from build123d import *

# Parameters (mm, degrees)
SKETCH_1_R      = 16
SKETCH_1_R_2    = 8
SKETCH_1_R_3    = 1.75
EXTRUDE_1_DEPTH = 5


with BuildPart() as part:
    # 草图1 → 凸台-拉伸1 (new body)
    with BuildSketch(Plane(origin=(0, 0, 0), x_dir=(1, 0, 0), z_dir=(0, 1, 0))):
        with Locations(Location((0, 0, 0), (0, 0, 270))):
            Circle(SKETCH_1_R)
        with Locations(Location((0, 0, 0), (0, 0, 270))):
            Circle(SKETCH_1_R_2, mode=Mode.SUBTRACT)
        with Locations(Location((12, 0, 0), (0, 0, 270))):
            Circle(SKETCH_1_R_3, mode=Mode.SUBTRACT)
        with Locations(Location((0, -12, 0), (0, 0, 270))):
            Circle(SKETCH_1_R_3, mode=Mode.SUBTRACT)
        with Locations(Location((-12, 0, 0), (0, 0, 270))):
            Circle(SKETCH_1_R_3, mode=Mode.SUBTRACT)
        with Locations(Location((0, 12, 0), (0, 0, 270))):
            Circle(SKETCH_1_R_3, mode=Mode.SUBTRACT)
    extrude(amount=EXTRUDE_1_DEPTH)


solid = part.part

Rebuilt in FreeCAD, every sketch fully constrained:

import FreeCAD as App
import Part
import Sketcher

doc = App.newDocument("Part")
body = doc.addObject("PartDesign::Body", "Body")

sketch1 = doc.addObject("Sketcher::SketchObject", "Sketch")
body.addObject(sketch1)
sketch1.AttachmentSupport = (doc.XZ_Plane, [""])
sketch1.MapMode = "FlatFace"
sketch1.addGeometry(Part.Circle(App.Vector(0, 0, 0), App.Vector(0, 0, 1), 16), False)
sketch1.addGeometry(Part.Circle(App.Vector(0, -12, 0), App.Vector(0, 0, 1), 1.75), False)
sketch1.addGeometry(Part.Circle(App.Vector(-12, 0, 0), App.Vector(0, 0, 1), 1.75), False)
sketch1.addGeometry(Part.Circle(App.Vector(12, 0, 0), App.Vector(0, 0, 1), 1.75), False)
sketch1.addGeometry(Part.Circle(App.Vector(0, 0, 0), App.Vector(0, 0, 1), 8), False)
sketch1.addGeometry(Part.Circle(App.Vector(0, 12, 0), App.Vector(0, 0, 1), 1.75), False)
sketch1.addConstraint(Sketcher.Constraint("Coincident", 0, 3, -1, 1))
sketch1.addConstraint(Sketcher.Constraint("Coincident", 4, 3, -1, 1))
sketch1.addConstraint(Sketcher.Constraint("Equal", 1, 2))
sketch1.addConstraint(Sketcher.Constraint("Equal", 2, 3))
sketch1.addConstraint(Sketcher.Constraint("Equal", 3, 5))
sketch1.addConstraint(Sketcher.Constraint("Symmetric", 2, 3, 3, 3, -1, 1))
sketch1.addConstraint(Sketcher.Constraint("Symmetric", 1, 3, 5, 3, -1, 1))
sketch1.addConstraint(Sketcher.Constraint("PointOnObject", 1, 3, -2))
sketch1.addConstraint(Sketcher.Constraint("PointOnObject", 2, 3, -1))
sketch1.addConstraint(Sketcher.Constraint("Diameter", 0, 32.0))
sketch1.addConstraint(Sketcher.Constraint("Diameter", 4, 16.0))
sketch1.addConstraint(Sketcher.Constraint("Diameter", 1, 3.5))
sketch1.addConstraint(Sketcher.Constraint("DistanceY", 1, 3, -1, 1, 12.0))
sketch1.addConstraint(Sketcher.Constraint("DistanceX", 2, 3, -1, 1, 12.0))
pad1 = doc.addObject("PartDesign::Pad", "Pad")
body.addObject(pad1)
pad1.Profile = sketch1
pad1.Length = 5
pad1.Reversed = True

doc.recompute()
